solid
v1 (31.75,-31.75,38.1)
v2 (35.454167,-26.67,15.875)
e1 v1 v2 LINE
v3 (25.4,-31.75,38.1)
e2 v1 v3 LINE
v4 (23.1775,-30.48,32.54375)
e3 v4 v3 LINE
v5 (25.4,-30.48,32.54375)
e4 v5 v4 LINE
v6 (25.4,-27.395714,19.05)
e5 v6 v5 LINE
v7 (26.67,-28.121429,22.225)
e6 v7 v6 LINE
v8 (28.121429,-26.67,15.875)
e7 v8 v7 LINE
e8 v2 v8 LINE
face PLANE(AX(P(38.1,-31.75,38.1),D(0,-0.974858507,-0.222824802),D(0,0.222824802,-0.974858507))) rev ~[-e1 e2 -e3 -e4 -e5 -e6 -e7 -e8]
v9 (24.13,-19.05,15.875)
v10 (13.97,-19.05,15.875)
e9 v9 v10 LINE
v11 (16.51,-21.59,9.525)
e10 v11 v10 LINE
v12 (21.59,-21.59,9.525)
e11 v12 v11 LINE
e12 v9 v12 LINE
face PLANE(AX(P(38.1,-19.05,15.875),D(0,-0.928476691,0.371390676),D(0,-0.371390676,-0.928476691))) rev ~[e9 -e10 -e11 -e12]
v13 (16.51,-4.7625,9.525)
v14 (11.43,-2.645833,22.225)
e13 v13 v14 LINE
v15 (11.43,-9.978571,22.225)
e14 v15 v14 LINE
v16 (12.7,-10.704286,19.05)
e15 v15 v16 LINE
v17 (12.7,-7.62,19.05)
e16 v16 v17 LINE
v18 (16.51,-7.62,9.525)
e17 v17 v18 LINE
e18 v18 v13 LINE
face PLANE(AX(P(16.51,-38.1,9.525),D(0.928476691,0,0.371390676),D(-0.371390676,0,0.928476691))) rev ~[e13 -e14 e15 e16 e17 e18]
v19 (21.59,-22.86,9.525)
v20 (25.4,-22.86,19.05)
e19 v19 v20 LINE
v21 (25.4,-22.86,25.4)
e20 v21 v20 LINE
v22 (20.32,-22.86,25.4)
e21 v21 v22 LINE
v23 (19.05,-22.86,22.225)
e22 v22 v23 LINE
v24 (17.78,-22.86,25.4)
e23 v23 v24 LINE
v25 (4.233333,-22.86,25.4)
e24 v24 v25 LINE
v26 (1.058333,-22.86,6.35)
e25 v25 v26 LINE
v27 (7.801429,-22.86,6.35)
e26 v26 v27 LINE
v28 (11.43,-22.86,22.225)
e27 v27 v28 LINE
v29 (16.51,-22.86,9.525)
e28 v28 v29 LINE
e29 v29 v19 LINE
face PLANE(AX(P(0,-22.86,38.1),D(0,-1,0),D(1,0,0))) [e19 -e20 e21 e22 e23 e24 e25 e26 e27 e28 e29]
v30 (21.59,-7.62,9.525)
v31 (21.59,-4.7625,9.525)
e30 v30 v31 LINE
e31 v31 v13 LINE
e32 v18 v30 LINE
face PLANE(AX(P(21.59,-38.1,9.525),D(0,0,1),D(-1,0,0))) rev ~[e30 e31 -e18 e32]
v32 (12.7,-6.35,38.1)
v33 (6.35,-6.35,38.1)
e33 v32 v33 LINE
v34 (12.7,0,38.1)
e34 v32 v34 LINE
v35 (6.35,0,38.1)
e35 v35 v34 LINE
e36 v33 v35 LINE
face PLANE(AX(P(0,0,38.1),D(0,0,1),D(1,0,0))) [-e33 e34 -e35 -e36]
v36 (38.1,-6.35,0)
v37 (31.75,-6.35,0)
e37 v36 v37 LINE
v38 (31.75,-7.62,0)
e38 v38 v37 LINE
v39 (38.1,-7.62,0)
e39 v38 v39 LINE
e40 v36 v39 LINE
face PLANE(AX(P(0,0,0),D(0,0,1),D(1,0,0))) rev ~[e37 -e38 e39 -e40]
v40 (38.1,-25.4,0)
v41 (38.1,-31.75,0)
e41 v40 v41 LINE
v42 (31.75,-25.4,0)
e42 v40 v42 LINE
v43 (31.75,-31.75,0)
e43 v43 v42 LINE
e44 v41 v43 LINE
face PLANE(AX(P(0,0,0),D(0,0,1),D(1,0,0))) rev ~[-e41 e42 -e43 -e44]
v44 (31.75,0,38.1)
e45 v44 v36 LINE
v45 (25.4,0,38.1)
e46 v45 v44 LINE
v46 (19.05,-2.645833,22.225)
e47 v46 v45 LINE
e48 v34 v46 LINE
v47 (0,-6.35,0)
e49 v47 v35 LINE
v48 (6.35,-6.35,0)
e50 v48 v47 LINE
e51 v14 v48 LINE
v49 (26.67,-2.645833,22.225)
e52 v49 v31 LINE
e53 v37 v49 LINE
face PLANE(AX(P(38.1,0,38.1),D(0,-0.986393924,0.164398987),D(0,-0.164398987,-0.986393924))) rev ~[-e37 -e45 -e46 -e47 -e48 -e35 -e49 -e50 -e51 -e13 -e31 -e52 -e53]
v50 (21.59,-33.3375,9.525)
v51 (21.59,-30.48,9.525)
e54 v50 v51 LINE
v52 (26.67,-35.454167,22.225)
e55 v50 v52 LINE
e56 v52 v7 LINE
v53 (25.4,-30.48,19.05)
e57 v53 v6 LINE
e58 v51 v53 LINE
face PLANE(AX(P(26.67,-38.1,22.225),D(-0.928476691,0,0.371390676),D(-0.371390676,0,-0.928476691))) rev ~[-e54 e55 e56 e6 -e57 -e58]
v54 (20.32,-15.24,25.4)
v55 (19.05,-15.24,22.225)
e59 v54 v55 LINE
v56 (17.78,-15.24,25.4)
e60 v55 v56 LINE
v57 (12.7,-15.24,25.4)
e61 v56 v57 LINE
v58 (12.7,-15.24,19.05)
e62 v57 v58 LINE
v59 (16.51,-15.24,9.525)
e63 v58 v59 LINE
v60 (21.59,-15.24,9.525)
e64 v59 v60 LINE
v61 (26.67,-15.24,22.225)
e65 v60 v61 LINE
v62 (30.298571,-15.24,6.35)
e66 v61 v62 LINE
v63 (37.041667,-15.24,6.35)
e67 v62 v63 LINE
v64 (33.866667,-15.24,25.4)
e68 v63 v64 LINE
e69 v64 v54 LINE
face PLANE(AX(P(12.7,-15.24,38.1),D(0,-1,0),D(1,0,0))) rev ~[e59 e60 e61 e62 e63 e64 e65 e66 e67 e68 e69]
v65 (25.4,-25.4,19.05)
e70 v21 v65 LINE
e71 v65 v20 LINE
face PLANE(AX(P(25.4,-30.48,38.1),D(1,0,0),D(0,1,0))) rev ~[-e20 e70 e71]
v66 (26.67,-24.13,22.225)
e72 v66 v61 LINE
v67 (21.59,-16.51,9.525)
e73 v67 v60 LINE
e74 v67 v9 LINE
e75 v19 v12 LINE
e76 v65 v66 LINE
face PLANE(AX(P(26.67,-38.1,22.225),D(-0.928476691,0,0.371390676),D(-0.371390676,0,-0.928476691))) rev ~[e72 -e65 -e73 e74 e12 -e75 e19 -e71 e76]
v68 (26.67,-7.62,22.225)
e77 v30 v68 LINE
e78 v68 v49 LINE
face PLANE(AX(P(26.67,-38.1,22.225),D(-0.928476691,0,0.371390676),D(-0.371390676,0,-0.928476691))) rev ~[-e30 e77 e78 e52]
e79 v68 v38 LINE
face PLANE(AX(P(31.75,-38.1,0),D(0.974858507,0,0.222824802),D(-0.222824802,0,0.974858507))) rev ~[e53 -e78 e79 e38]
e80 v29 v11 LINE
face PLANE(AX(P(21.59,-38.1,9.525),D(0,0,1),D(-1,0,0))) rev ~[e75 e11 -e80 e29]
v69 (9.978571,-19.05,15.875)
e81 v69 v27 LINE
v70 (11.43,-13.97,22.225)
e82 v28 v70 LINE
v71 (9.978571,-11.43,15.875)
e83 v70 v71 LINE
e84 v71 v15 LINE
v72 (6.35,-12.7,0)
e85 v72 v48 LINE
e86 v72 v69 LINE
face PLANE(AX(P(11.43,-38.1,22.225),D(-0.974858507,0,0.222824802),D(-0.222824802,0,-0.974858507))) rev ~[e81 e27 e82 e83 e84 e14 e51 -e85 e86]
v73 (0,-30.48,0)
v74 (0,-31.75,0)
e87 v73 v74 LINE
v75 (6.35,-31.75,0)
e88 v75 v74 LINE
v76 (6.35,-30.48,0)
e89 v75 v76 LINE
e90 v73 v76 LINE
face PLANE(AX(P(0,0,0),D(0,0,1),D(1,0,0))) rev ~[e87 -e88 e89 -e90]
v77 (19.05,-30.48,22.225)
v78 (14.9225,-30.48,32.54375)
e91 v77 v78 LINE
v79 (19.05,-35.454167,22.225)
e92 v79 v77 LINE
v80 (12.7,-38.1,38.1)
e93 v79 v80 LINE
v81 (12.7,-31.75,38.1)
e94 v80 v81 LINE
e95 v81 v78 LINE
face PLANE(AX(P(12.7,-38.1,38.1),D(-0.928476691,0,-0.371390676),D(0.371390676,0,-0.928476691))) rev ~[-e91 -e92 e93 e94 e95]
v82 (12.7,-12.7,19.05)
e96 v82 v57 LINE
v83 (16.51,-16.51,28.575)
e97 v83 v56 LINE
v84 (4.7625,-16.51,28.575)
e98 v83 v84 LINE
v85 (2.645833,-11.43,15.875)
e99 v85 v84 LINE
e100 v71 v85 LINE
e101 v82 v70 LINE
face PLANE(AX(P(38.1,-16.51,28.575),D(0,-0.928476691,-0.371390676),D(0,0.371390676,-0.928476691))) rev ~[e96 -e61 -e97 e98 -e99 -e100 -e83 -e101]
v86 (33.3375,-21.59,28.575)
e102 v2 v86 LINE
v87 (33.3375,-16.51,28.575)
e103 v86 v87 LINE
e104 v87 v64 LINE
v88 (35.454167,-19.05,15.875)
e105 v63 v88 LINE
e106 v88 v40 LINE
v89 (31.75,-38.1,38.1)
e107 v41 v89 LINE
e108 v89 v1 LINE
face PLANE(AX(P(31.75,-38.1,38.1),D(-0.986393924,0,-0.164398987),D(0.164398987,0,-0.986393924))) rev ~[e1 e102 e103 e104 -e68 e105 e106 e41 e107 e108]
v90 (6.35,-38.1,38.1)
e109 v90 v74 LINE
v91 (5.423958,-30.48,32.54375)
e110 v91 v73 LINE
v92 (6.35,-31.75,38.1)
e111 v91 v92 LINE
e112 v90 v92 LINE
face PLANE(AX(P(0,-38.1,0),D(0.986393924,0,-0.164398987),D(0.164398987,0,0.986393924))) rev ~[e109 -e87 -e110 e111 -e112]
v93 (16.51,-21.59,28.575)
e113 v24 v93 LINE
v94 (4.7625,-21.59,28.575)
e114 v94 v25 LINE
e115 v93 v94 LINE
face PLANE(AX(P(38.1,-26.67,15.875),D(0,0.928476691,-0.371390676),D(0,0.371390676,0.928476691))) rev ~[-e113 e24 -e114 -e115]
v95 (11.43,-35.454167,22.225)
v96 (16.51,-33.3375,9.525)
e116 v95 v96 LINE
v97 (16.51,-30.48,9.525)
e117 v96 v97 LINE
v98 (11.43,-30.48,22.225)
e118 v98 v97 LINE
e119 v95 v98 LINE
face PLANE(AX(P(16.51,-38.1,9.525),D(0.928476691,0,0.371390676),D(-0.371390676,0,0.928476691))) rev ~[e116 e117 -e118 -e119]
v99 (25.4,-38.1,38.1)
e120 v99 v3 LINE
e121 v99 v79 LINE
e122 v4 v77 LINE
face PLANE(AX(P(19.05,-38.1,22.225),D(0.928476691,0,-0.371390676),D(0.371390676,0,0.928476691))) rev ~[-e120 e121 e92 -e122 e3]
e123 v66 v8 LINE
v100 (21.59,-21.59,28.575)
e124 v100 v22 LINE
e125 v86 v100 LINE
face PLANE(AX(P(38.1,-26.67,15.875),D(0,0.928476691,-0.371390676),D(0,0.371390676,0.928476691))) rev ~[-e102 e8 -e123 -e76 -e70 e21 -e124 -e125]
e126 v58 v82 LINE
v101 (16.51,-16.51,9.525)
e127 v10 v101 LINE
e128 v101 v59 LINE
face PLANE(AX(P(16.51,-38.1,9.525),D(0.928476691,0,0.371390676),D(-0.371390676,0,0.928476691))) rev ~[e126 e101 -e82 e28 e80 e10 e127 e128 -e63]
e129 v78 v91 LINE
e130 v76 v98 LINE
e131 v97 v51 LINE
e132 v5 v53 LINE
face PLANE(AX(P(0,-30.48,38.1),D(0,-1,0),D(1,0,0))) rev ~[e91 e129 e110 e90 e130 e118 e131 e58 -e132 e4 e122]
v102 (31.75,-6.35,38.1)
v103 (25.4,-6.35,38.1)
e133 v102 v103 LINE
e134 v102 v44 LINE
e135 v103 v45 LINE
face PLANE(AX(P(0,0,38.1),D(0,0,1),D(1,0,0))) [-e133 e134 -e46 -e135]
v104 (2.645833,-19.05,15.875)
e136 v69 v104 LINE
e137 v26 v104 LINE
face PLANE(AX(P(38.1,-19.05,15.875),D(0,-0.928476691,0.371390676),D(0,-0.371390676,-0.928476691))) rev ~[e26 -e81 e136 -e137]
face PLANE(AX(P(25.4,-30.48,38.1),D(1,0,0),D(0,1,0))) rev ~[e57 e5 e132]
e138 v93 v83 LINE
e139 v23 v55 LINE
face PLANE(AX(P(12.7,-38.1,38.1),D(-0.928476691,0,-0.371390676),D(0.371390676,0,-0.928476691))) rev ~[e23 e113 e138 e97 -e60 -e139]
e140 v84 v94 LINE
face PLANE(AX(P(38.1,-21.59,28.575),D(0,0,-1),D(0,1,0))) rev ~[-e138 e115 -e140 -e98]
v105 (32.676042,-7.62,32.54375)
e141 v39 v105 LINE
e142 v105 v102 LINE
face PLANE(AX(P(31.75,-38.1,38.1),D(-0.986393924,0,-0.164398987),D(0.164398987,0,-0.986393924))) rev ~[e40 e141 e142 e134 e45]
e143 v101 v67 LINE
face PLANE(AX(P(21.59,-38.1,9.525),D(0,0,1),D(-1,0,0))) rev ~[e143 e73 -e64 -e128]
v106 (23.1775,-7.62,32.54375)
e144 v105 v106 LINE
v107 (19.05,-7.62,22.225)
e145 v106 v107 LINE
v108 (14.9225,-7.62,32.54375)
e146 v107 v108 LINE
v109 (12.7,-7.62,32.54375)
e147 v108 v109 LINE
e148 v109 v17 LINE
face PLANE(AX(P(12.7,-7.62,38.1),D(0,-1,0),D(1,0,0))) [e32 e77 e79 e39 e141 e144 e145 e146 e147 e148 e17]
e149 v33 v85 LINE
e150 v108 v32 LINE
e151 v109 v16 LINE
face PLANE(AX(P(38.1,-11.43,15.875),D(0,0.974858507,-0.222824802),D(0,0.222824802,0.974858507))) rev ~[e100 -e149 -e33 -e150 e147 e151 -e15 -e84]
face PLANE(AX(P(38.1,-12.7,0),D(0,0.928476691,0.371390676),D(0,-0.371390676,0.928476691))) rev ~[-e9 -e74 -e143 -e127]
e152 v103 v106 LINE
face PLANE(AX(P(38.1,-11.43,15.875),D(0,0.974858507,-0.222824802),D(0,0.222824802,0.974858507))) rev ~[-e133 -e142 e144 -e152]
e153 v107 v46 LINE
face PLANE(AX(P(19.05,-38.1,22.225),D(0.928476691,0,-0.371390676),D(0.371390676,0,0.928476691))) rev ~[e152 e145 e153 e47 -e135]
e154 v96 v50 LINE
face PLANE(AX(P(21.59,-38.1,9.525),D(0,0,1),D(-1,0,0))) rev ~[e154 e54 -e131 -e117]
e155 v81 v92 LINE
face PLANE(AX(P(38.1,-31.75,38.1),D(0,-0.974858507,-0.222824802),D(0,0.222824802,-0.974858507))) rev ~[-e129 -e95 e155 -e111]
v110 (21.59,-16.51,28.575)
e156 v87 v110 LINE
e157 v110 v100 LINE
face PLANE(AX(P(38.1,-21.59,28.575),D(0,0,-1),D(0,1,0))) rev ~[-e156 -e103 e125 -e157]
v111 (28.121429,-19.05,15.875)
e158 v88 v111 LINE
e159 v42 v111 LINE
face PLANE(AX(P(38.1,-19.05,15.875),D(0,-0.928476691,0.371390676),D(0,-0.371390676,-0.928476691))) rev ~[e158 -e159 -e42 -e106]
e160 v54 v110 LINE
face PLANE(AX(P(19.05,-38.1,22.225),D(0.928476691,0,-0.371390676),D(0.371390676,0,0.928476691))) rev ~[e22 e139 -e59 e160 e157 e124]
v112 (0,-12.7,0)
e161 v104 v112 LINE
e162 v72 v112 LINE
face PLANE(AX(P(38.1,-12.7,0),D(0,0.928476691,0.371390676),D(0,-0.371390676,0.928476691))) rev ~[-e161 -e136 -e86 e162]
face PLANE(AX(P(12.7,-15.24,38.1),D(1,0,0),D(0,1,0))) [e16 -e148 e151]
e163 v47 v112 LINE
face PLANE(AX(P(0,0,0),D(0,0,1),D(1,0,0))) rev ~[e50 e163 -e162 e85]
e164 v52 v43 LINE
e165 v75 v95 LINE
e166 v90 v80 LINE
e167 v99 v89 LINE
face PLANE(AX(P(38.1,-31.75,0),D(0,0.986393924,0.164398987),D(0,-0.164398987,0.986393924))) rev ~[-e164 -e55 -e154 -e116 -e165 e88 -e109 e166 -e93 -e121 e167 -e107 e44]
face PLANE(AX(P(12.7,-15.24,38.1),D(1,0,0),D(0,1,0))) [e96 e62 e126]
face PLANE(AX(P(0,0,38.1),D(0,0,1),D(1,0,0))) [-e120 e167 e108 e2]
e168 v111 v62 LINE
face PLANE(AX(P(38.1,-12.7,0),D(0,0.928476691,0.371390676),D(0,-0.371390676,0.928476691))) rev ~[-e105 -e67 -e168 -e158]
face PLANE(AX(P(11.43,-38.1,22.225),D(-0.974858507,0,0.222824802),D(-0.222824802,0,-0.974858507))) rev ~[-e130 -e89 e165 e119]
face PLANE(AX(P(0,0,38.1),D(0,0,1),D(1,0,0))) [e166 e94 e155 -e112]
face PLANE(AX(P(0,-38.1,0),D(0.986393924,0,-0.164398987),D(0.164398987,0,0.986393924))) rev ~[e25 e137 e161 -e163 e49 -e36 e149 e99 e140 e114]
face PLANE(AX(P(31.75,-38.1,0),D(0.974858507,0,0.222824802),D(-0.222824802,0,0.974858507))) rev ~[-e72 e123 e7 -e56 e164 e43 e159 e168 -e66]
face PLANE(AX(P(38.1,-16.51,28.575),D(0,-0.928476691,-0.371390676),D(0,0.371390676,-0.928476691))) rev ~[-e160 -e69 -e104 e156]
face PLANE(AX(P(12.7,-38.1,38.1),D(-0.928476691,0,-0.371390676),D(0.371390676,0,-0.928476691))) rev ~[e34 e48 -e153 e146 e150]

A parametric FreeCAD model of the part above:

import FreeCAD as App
import Part
import Sketcher

V = App.Vector
Q = App.Units.Quantity

doc = App.newDocument("Part")
body = doc.addObject("PartDesign::Body", "Body")

# Sketch on XZ plane
sketch1 = body.newObject("Sketcher::SketchObject", "Sketch")
sketch1.AttachmentSupport = (doc.getObject("XZ_Plane"), [""])
sketch1.MapMode = "FlatFace"
sketch1.addGeometry([
    Part.LineSegment(V(0, 38, 0), V(0, 0, 0)),
    Part.LineSegment(V(0, 0, 0), V(38, 0, 0)),
    Part.LineSegment(V(38, 0, 0), V(38, 38, 0)),
    Part.LineSegment(V(38, 38, 0), V(0, 38, 0)),
], False)
sketch1.addConstraint([
    Sketcher.Constraint("Coincident", 0, 2, 1, 1),
    Sketcher.Constraint("Coincident", 1, 2, 2, 1),
    Sketcher.Constraint("Coincident", 2, 2, 3, 1),
    Sketcher.Constraint("Coincident", 3, 2, 0, 1),
    Sketcher.Constraint("Vertical", 0),
    Sketcher.Constraint("Horizontal", 1),
    Sketcher.Constraint("Vertical", 2),
    Sketcher.Constraint("Horizontal", 3),
    Sketcher.Constraint("Coincident", 0, 2, -1, 1),
    Sketcher.Constraint("Equal", 3, 0),
    Sketcher.Constraint("DistanceX", 1, 1, 1, 2, Q("1.5 in")),
])
pad1 = body.newObject("PartDesign::Pad", "Pad")
pad1.Profile = sketch1
pad1.Length = Q("1.5 in")

# Sketch on YZ plane
sketch2 = body.newObject("Sketcher::SketchObject", "Sketch001")
sketch2.AttachmentSupport = (doc.getObject("YZ_Plane"), [""])
sketch2.MapMode = "FlatFace"
sketch2.AttachmentOffset = App.Placement(V(0, 0, 1.5 * 25.4), App.Rotation())
sketch2.addGeometry([
    Part.LineSegment(V(-32, 0, 0), V(-38, 38, 0)),  # 0
    Part.LineSegment(V(-38, 38, 0), V(-38, 0, 0)),  # 1
    Part.LineSegment(V(-38, 0, 0), V(-32, 0, 0)),  # 2
    Part.LineSegment(V(-6, 38, 0), V(-32, 38, 0)),  # 3
    Part.LineSegment(V(-32, 38, 0), V(-27, 16, 0)),  # 4
    Part.LineSegment(V(-27, 16, 0), V(-22, 29, 0)),  # 5
    Part.LineSegment(V(-22, 29, 0), V(-17, 29, 0)),  # 6
    Part.LineSegment(V(-17, 29, 0), V(-11, 16, 0)),  # 7
    Part.LineSegment(V(-11, 16, 0), V(-6, 38, 0)),  # 8
    Part.LineSegment(V(-19, 16, 0), V(-25, 0, 0)),  # 9
    Part.LineSegment(V(-25, 0, 0), V(-13, 0, 0)),  # 10
    Part.LineSegment(V(-13, 0, 0), V(-19, 16, 0)),  # 11
    Part.LineSegment(V(0, 0, 0), V(0, 38, 0)),  # 12
    Part.LineSegment(V(0, 38, 0), V(-6, 0, 0)),  # 13
    Part.LineSegment(V(-6, 0, 0), V(0, 0, 0)),  # 14
], False)
sketch2.addConstraint([
    Sketcher.Constraint("Coincident", 0, 2, 1, 1),
    Sketcher.Constraint("Coincident", 1, 2, 2, 1),
    Sketcher.Constraint("Coincident", 2, 2, 0, 1),
    Sketcher.Constraint("Coincident", 3, 2, 4, 1),
    Sketcher.Constraint("Coincident", 4, 2, 5, 1),
    Sketcher.Constraint("Coincident", 5, 2, 6, 1),
    Sketcher.Constraint("Coincident", 6, 2, 7, 1),
    Sketcher.Constraint("Coincident", 7, 2, 8, 1),
    Sketcher.Constraint("Coincident", 8, 2, 3, 1),
    Sketcher.Constraint("Coincident", 9, 2, 10, 1),
    Sketcher.Constraint("Coincident", 10, 2, 11, 1),
    Sketcher.Constraint("Coincident", 11, 2, 9, 1),
    Sketcher.Constraint("Coincident", 12, 2, 13, 1),
    Sketcher.Constraint("Coincident", 13, 2, 14, 1),
    Sketcher.Constraint("Coincident", 14, 2, 12, 1),
    Sketcher.Constraint("Vertical", 1),
    Sketcher.Constraint("Horizontal", 2),
    Sketcher.Constraint("Horizontal", 3),
    Sketcher.Constraint("Horizontal", 6),
    Sketcher.Constraint("Horizontal", 10),
    Sketcher.Constraint("Vertical", 12),
    Sketcher.Constraint("Horizontal", 14),
    Sketcher.Constraint("Coincident", 14, 2, -1, 1),
    Sketcher.Constraint("PointOnObject", 1, 2, -1),
    Sketcher.Constraint("PointOnObject", 9, 2, -1),
    Sketcher.Constraint("Parallel", 5, 9),
    Sketcher.Constraint("Parallel", 7, 11),
    Sketcher.Constraint("Horizontal", 0, 2, 3, 2),
    Sketcher.Constraint("Horizontal", 4, 2, 7, 2),
    Sketcher.Constraint("Horizontal", 7, 2, 11, 2),
    Sketcher.Constraint("Horizontal", 8, 2, 12, 2),
    Sketcher.Constraint("Vertical", 2, 2, 3, 2),
    Sketcher.Constraint("Vertical", 8, 2, 13, 2),
    Sketcher.Constraint("Equal", 2, 14),
    Sketcher.Constraint("Equal", 5, 7),
    Sketcher.Constraint("Equal", 4, 8),
    Sketcher.Constraint("DistanceX", 3, 2, 3, 1, Q("1 in")),
    Sketcher.Constraint("DistanceX", 6, 1, 6, 2, Q("0.2 in")),
    Sketcher.Constraint("DistanceX", 10, 1, 10, 2, Q("0.5 in")),
    Sketcher.Constraint("DistanceY", 1, 2, 1, 1, Q("1.5 in")),
    Sketcher.Constraint("DistanceX", 9, 2, -1, 1, Q("1 in")),
    Sketcher.Constraint("DistanceX", 1, 2, 10, 2, Q("1 in")),
    Sketcher.Constraint("DistanceX", 2, 2, 4, 2, Q("0.2 in")),
    Sketcher.Constraint("DistanceY", 4, 2, 5, 2, Q("0.5 in")),
])
pocket1 = body.newObject("PartDesign::Pocket", "Pocket")
pocket1.Profile = sketch2
pocket1.Length = Q("1.5 in")

# Sketch on XZ plane
sketch3 = body.newObject("Sketcher::SketchObject", "Sketch002")
sketch3.AttachmentSupport = (doc.getObject("XZ_Plane"), [""])
sketch3.MapMode = "FlatFace"
sketch3.AttachmentOffset = App.Placement(V(0, 0, 1.5 * 25.4), App.Rotation())
sketch3.addGeometry([
    Part.LineSegment(V(0, 38, 0), V(0, 0, 0)),  # 0
    Part.LineSegment(V(0, 0, 0), V(6, 38, 0)),  # 1
    Part.LineSegment(V(6, 38, 0), V(0, 38, 0)),  # 2
    Part.LineSegment(V(25, 38, 0), V(13, 38, 0)),  # 3
    Part.LineSegment(V(13, 38, 0), V(19, 22, 0)),  # 4
    Part.LineSegment(V(19, 22, 0), V(25, 38, 0)),  # 5
    Part.LineSegment(V(32, 38, 0), V(38, 0, 0)),  # 6
    Part.LineSegment(V(38, 0, 0), V(38, 38, 0)),  # 7
    Part.LineSegment(V(38, 38, 0), V(32, 38, 0)),  # 8
    Part.LineSegment(V(11, 22, 0), V(6, 0, 0)),  # 9
    Part.LineSegment(V(6, 0, 0), V(32, 0, 0)),  # 10
    Part.LineSegment(V(32, 0, 0), V(27, 22, 0)),  # 11
    Part.LineSegment(V(27, 22, 0), V(22, 10, 0)),  # 12
    Part.LineSegment(V(22, 10, 0), V(17, 10, 0)),  # 13
    Part.LineSegment(V(17, 10, 0), V(11, 22, 0)),  # 14
], False)
sketch3.addConstraint([
    Sketcher.Constraint("Coincident", 0, 2, 1, 1),
    Sketcher.Constraint("Coincident", 1, 2, 2, 1),
    Sketcher.Constraint("Coincident", 2, 2, 0, 1),
    Sketcher.Constraint("Coincident", 3, 2, 4, 1),
    Sketcher.Constraint("Coincident", 4, 2, 5, 1),
    Sketcher.Constraint("Coincident", 5, 2, 3, 1),
    Sketcher.Constraint("Coincident", 6, 2, 7, 1),
    Sketcher.Constraint("Coincident", 7, 2, 8, 1),
    Sketcher.Constraint("Coincident", 8, 2, 6, 1),
    Sketcher.Constraint("Coincident", 9, 2, 10, 1),
    Sketcher.Constraint("Coincident", 10, 2, 11, 1),
    Sketcher.Constraint("Coincident", 11, 2, 12, 1),
    Sketcher.Constraint("Coincident", 12, 2, 13, 1),
    Sketcher.Constraint("Coincident", 13, 2, 14, 1),
    Sketcher.Constraint("Coincident", 14, 2, 9, 1),
    Sketcher.Constraint("Vertical", 0),
    Sketcher.Constraint("Horizontal", 2),
    Sketcher.Constraint("Horizontal", 3),
    Sketcher.Constraint("Vertical", 7),
    Sketcher.Constraint("Horizontal", 8),
    Sketcher.Constraint("Horizontal", 10),
    Sketcher.Constraint("Horizontal", 13),
    Sketcher.Constraint("Coincident", 0, 2, -1, 1),
    Sketcher.Constraint("PointOnObject", 6, 2, -1),
    Sketcher.Constraint("PointOnObject", 9, 2, -1),
    Sketcher.Constraint("Parallel", 5, 12),
    Sketcher.Constraint("Parallel", 4, 14),
    Sketcher.Constraint("Horizontal", 2, 2, 3, 2),
    Sketcher.Constraint("Horizontal", 5, 2, 7, 2),
    Sketcher.Constraint("Horizontal", 4, 2, 11, 2),
    Sketcher.Constraint("Horizontal", 11, 2, 14, 2),
    Sketcher.Constraint("Vertical", 1, 2, 9, 2),
    Sketcher.Constraint("Vertical", 8, 2, 10, 2),
    Sketcher.Constraint("Equal", 2, 8),
    Sketcher.Constraint("Equal", 4, 5),
    Sketcher.Constraint("Equal", 9, 11),
    Sketcher.Constraint("DistanceX", 10, 1, 10, 2, Q("1 in")),
    Sketcher.Constraint("DistanceX", 3, 2, 3, 1, Q("0.5 in")),
    Sketcher.Constraint("DistanceX", 13, 2, 13, 1, Q("0.2 in")),
    Sketcher.Constraint("DistanceY", 0, 2, 0, 1, Q("1.5 in")),
    Sketcher.Constraint("DistanceX", -1, 1, 5, 2, Q("1 in")),
    Sketcher.Constraint("DistanceX", 3, 2, 6, 2, Q("1 in")),
    Sketcher.Constraint("DistanceX", 4, 2, 11, 2, Q("0.3 in")),
    Sketcher.Constraint("DistanceY", 12, 2, 4, 2, Q("0.5 in")),
])
pocket2 = body.newObject("PartDesign::Pocket", "Pocket001")
pocket2.Profile = sketch3
pocket2.Length = Q("1.5 in")

# Sketch on XY plane
sketch4 = body.newObject("Sketcher::SketchObject", "Sketch003")
sketch4.AttachmentSupport = (doc.getObject("XY_Plane"), [""])
sketch4.MapMode = "FlatFace"
sketch4.AttachmentOffset = App.Placement(V(0, 0, 1.5 * 25.4), App.Rotation())
sketch4.addGeometry([
    Part.LineSegment(V(13, -8, 0), V(13, -15, 0)),  # 0
    Part.LineSegment(V(13, -15, 0), V(38, -15, 0)),  # 1
    Part.LineSegment(V(38, -15, 0), V(38, -8, 0)),  # 2
    Part.LineSegment(V(38, -8, 0), V(13, -8, 0)),  # 3
    Part.LineSegment(V(0, -23, 0), V(0, -30, 0)),  # 4
    Part.LineSegment(V(0, -30, 0), V(25, -30, 0)),  # 5
    Part.LineSegment(V(25, -30, 0), V(25, -23, 0)),  # 6
    Part.LineSegment(V(25, -23, 0), V(0, -23, 0)),  # 7
], False)
sketch4.addConstraint([
    Sketcher.Constraint("Coincident", 0, 2, 1, 1),
    Sketcher.Constraint("Coincident", 1, 2, 2, 1),
    Sketcher.Constraint("Coincident", 2, 2, 3, 1),
    Sketcher.Constraint("Coincident", 3, 2, 0, 1),
    Sketcher.Constraint("Coincident", 4, 2, 5, 1),
    Sketcher.Constraint("Coincident", 5, 2, 6, 1),
    Sketcher.Constraint("Coincident", 6, 2, 7, 1),
    Sketcher.Constraint("Coincident", 7, 2, 4, 1),
    Sketcher.Constraint("Vertical", 0),
    Sketcher.Constraint("Horizontal", 1),
    Sketcher.Constraint("Vertical", 2),
    Sketcher.Constraint("Horizontal", 3),
    Sketcher.Constraint("Vertical", 4),
    Sketcher.Constraint("Horizontal", 5),
    Sketcher.Constraint("Vertical", 6),
    Sketcher.Constraint("Horizontal", 7),
    Sketcher.Constraint("PointOnObject", 4, 2, -2),
    Sketcher.Constraint("Equal", 3, 5),
    Sketcher.Constraint("Equal", 2, 4),
    Sketcher.Constraint("DistanceX", 1, 1, 1, 2, Q("1 in")),
    Sketcher.Constraint("DistanceY", 0, 2, 0, 1, Q("0.3 in")),
    Sketcher.Constraint("DistanceX", -1, 1, 0, 2, Q("0.5 in")),
    Sketcher.Constraint("DistanceY", 0, 2, -1, 1, Q("0.6 in")),
    Sketcher.Constraint("DistanceY", 4, 2, -1, 1, Q("1.2 in")),
])
pocket3 = body.newObject("PartDesign::Pocket", "Pocket002")
pocket3.Profile = sketch4
pocket3.Length = Q("1.5 in")

doc.recompute()
